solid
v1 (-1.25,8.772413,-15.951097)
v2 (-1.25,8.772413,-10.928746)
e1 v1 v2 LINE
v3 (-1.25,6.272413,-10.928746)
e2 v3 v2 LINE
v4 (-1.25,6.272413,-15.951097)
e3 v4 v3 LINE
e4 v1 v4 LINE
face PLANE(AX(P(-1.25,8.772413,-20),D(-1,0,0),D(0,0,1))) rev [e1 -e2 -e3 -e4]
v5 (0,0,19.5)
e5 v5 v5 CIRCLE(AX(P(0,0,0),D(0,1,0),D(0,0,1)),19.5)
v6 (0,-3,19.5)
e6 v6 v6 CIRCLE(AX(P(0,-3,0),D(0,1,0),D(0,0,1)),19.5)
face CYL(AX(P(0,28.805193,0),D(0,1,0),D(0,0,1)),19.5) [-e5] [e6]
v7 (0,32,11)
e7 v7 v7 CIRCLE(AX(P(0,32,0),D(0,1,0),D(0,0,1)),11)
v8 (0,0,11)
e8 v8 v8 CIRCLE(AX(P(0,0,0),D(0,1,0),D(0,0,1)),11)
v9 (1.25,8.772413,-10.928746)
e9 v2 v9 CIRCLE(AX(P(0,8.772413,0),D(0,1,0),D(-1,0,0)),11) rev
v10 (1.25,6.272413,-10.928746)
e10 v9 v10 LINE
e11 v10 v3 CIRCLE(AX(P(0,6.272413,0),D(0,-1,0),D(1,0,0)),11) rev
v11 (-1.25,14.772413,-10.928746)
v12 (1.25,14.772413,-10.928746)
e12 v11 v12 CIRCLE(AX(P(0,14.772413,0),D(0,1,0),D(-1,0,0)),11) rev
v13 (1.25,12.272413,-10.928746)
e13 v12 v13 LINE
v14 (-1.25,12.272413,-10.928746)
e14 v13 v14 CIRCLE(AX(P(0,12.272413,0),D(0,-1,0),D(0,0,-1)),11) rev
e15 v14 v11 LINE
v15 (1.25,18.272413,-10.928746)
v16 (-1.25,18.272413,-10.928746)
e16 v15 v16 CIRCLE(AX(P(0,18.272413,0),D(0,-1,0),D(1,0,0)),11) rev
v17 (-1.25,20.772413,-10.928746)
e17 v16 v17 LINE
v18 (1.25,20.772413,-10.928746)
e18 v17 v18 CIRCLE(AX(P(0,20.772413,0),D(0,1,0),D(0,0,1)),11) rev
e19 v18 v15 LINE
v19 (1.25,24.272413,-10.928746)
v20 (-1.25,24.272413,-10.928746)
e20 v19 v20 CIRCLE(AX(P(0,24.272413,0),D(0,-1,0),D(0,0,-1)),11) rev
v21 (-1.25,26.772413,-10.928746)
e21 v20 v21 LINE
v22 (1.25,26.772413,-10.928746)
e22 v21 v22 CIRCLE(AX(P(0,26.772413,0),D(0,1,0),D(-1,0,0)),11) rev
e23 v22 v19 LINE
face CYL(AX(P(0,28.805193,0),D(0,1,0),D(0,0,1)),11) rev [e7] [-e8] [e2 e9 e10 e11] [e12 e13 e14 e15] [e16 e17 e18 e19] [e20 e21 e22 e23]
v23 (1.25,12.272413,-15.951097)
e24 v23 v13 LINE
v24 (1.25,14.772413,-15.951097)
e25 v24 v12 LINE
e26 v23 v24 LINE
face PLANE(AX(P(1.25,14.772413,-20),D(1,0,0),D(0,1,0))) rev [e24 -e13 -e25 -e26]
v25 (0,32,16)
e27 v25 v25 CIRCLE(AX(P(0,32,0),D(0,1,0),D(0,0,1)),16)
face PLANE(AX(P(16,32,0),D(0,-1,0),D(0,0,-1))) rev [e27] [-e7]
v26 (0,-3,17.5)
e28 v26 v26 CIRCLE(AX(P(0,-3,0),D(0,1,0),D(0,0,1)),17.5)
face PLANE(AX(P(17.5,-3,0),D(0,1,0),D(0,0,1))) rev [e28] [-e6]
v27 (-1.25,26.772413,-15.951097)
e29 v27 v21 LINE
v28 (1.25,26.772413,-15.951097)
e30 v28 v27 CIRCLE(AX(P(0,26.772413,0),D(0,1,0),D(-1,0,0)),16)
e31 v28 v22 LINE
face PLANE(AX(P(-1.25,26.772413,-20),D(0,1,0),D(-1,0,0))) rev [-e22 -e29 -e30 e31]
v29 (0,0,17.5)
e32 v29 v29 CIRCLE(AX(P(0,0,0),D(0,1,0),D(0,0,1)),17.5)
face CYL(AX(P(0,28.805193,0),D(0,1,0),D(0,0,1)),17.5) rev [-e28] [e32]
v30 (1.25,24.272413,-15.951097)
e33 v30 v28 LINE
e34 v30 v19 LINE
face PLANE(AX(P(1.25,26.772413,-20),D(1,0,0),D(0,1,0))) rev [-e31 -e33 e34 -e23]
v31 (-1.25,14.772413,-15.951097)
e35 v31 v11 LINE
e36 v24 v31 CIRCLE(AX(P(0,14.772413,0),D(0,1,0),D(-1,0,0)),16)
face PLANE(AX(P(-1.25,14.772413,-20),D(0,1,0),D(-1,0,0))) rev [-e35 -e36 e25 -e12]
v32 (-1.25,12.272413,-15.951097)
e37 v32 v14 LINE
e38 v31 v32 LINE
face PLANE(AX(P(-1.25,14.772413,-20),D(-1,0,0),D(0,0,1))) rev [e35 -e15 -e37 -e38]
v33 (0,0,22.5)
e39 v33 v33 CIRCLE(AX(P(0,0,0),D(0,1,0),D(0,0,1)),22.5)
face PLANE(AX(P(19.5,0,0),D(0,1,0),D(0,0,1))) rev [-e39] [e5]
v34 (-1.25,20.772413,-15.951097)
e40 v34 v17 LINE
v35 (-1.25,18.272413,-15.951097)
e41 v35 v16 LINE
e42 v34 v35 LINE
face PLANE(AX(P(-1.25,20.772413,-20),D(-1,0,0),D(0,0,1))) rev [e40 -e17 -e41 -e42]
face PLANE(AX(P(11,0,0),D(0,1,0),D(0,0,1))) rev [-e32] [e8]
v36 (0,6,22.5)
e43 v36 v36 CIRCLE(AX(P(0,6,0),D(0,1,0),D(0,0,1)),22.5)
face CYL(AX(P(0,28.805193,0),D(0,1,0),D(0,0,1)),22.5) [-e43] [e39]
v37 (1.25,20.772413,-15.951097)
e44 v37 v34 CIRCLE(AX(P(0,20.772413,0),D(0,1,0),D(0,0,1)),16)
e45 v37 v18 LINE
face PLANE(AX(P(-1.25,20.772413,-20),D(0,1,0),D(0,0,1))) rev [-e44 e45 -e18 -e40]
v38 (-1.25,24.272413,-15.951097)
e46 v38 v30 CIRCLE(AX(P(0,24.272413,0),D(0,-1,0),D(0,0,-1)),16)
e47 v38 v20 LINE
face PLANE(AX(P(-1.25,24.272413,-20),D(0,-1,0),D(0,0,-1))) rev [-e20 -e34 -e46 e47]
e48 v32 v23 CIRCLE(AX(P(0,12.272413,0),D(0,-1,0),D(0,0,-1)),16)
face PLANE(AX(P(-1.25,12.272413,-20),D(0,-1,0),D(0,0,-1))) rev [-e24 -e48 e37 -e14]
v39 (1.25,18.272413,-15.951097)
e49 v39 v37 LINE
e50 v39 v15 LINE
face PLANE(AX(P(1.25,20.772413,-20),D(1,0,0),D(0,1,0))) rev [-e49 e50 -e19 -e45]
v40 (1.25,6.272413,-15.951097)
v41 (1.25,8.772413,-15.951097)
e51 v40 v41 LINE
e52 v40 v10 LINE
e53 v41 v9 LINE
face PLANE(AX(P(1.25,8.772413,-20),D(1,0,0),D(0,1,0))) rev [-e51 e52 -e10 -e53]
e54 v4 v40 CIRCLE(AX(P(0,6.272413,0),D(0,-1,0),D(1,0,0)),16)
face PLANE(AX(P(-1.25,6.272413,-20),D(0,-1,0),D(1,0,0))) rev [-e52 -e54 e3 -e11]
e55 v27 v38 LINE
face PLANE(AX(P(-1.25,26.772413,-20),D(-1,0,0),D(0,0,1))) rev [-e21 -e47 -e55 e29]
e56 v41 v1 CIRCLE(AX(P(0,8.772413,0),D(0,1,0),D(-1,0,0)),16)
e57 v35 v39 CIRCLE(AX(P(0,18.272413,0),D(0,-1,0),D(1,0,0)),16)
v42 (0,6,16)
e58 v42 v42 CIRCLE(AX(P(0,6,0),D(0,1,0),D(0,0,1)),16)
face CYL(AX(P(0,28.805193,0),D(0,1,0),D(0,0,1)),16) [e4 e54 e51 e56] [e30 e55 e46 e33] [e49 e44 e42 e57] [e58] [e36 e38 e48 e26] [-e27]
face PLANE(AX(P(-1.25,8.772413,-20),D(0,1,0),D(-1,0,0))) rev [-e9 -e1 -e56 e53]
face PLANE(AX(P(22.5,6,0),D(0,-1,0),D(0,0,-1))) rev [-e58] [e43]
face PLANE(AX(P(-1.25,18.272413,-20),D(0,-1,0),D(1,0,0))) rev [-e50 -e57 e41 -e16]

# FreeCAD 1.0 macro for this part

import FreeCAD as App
import Part
import Sketcher
Q = App.Units.Quantity


def add_polygon(sketch, points):
    """Adds a closed chain of lines whose ends are joined by coincident constraints."""
    first, n = sketch.GeometryCount, len(points)
    for a, b in zip(points, points[1:] + points[:1]):
        sketch.addGeometry(Part.LineSegment(App.Vector(*a, 0), App.Vector(*b, 0)), False)
    for i in range(n):
        sketch.addConstraint(Sketcher.Constraint("Coincident", first + i, 2, first + (i + 1) % n, 1))

doc = App.newDocument("Part")
params = doc.addObject("Spreadsheet::Sheet", "Params")
for row, (alias, value) in enumerate([
    ("sketch1_width", "2 mm"),
    ("sketch1_width2", "3 mm"),
    ("sketch1_height", "6 mm"),
    ("sketch1_height2", "26 mm"),
    ("sketch1_width3", "6.5 mm"),
    ("revolution_angle", "360 deg"),
    ("sketch2_width", "2.5 mm"),
    ("pocket1_length", "20 mm"),
], start=1):
    params.set(f"A{row}", alias)
    params.set(f"B{row}", "=" + value)
    params.setAlias(f"B{row}", alias)

body = doc.addObject("PartDesign::Body", "Body")

# Sketch on XY plane
sketch1 = body.newObject("Sketcher::SketchObject", "Sketch")
sketch1.AttachmentSupport = (doc.getObject("XY_Plane"), [""])
sketch1.MapMode = "FlatFace"
add_polygon(sketch1, [(11, 0), (17.5, 0), (17.5, -3), (19.5, -3), (19.5, 0), (22.5, 0), (22.5, 6), (16, 6), (16, 32), (11, 32)])  # lines 0-9
sketch1.addConstraint([
    Sketcher.Constraint("Horizontal", 0),
    Sketcher.Constraint("Vertical", 1),
    Sketcher.Constraint("Horizontal", 2),
    Sketcher.Constraint("Vertical", 3),
    Sketcher.Constraint("Horizontal", 4),
    Sketcher.Constraint("Vertical", 5),
    Sketcher.Constraint("Horizontal", 6),
    Sketcher.Constraint("Vertical", 7),
    Sketcher.Constraint("Horizontal", 8),
    Sketcher.Constraint("Vertical", 9),
    Sketcher.Constraint("PointOnObject", 0, 2, -1),
    Sketcher.Constraint("PointOnObject", 3, 2, -1),
    Sketcher.Constraint("Equal", 0, 6),
    Sketcher.Constraint("Equal", 4, 1),
    Sketcher.Constraint("DistanceX", 2, 1, 2, 2, Q("2 mm")),
    Sketcher.Constraint("DistanceX", 4, 1, 4, 2, Q("3 mm")),
    Sketcher.Constraint("DistanceY", 5, 1, 5, 2, Q("6 mm")),
    Sketcher.Constraint("DistanceY", 7, 1, 7, 2, Q("26 mm")),
    Sketcher.Constraint("DistanceX", 0, 1, 0, 2, Q("6.5 mm")),
    Sketcher.Constraint("DistanceX", -1, 1, 6, 2, Q("16 mm")),
])
sketch1.setExpression("Constraints[24]", "Params.sketch1_width")
sketch1.setExpression("Constraints[25]", "Params.sketch1_width2")
sketch1.setExpression("Constraints[26]", "Params.sketch1_height")
sketch1.setExpression("Constraints[27]", "Params.sketch1_height2")
sketch1.setExpression("Constraints[28]", "Params.sketch1_width3")
revolution = body.newObject("PartDesign::Revolution", "Revolution")
revolution.Profile = sketch1
revolution.ReferenceAxis = (sketch1, ["V_Axis"])
revolution.setExpression("Angle", "Params.revolution_angle")

# Sketch on XY plane
sketch2 = body.newObject("Sketcher::SketchObject", "Sketch001")
sketch2.AttachmentSupport = (doc.getObject("XY_Plane"), [""])
sketch2.MapMode = "FlatFace"
add_polygon(sketch2, [(-1.25, 14.772413), (-1.25, 12.272413), (1.25, 12.272413), (1.25, 14.772413)])  # lines 0-3
add_polygon(sketch2, [(-1.25, 8.772413), (-1.25, 6.272413), (1.25, 6.272413), (1.25, 8.772413)])  # lines 4-7
add_polygon(sketch2, [(-1.25, 20.772413), (-1.25, 18.272413), (1.25, 18.272413), (1.25, 20.772413)])  # lines 8-11
add_polygon(sketch2, [(-1.25, 26.772413), (-1.25, 24.272413), (1.25, 24.272413), (1.25, 26.772413)])  # lines 12-15
sketch2.addConstraint([
    Sketcher.Constraint("Vertical", 0),
    Sketcher.Constraint("Horizontal", 1),
    Sketcher.Constraint("Vertical", 2),
    Sketcher.Constraint("Horizontal", 3),
    Sketcher.Constraint("Vertical", 4),
    Sketcher.Constraint("Horizontal", 5),
    Sketcher.Constraint("Vertical", 6),
    Sketcher.Constraint("Horizontal", 7),
    Sketcher.Constraint("Vertical", 8),
    Sketcher.Constraint("Horizontal", 9),
    Sketcher.Constraint("Vertical", 10),
    Sketcher.Constraint("Horizontal", 11),
    Sketcher.Constraint("Vertical", 12),
    Sketcher.Constraint("Horizontal", 13),
    Sketcher.Constraint("Vertical", 14),
    Sketcher.Constraint("Horizontal", 15),
    Sketcher.Constraint("Vertical", 3, 2, 4, 2),
    Sketcher.Constraint("Vertical", 2, 2, 5, 2),
    Sketcher.Constraint("Vertical", 7, 2, 8, 2),
    Sketcher.Constraint("Vertical", 6, 2, 9, 2),
    Sketcher.Constraint("Vertical", 11, 2, 12, 2),
    Sketcher.Constraint("Vertical", 10, 2, 13, 2),
    Sketcher.Constraint("Equal", 15, 0),
    Sketcher.Constraint("Equal", 2, 4),
    Sketcher.Constraint("Equal", 6, 8),
    Sketcher.Constraint("Equal", 10, 12),
    Sketcher.Constraint("DistanceX", 1, 1, 1, 2, Q("2.5 mm")),
    Sketcher.Constraint("DistanceY", 4, 2, 0, 2, Q("6 mm")),
    Sketcher.Constraint("DistanceY", 0, 2, 8, 2, Q("6 mm")),
    Sketcher.Constraint("DistanceY", 8, 2, 12, 2, Q("6 mm")),
    Sketcher.Constraint("DistanceX", 0, 2, -1, 1, Q("1.25 mm")),
    Sketcher.Constraint("DistanceY", -1, 1, 0, 2, Q("12.272413 mm")),
])
sketch2.setExpression("Constraints[42]", "Params.sketch2_width")
pocket1 = body.newObject("PartDesign::Pocket", "Pocket")
pocket1.Profile = sketch2
pocket1.setExpression("Length", "Params.pocket1_length")

doc.recompute()
